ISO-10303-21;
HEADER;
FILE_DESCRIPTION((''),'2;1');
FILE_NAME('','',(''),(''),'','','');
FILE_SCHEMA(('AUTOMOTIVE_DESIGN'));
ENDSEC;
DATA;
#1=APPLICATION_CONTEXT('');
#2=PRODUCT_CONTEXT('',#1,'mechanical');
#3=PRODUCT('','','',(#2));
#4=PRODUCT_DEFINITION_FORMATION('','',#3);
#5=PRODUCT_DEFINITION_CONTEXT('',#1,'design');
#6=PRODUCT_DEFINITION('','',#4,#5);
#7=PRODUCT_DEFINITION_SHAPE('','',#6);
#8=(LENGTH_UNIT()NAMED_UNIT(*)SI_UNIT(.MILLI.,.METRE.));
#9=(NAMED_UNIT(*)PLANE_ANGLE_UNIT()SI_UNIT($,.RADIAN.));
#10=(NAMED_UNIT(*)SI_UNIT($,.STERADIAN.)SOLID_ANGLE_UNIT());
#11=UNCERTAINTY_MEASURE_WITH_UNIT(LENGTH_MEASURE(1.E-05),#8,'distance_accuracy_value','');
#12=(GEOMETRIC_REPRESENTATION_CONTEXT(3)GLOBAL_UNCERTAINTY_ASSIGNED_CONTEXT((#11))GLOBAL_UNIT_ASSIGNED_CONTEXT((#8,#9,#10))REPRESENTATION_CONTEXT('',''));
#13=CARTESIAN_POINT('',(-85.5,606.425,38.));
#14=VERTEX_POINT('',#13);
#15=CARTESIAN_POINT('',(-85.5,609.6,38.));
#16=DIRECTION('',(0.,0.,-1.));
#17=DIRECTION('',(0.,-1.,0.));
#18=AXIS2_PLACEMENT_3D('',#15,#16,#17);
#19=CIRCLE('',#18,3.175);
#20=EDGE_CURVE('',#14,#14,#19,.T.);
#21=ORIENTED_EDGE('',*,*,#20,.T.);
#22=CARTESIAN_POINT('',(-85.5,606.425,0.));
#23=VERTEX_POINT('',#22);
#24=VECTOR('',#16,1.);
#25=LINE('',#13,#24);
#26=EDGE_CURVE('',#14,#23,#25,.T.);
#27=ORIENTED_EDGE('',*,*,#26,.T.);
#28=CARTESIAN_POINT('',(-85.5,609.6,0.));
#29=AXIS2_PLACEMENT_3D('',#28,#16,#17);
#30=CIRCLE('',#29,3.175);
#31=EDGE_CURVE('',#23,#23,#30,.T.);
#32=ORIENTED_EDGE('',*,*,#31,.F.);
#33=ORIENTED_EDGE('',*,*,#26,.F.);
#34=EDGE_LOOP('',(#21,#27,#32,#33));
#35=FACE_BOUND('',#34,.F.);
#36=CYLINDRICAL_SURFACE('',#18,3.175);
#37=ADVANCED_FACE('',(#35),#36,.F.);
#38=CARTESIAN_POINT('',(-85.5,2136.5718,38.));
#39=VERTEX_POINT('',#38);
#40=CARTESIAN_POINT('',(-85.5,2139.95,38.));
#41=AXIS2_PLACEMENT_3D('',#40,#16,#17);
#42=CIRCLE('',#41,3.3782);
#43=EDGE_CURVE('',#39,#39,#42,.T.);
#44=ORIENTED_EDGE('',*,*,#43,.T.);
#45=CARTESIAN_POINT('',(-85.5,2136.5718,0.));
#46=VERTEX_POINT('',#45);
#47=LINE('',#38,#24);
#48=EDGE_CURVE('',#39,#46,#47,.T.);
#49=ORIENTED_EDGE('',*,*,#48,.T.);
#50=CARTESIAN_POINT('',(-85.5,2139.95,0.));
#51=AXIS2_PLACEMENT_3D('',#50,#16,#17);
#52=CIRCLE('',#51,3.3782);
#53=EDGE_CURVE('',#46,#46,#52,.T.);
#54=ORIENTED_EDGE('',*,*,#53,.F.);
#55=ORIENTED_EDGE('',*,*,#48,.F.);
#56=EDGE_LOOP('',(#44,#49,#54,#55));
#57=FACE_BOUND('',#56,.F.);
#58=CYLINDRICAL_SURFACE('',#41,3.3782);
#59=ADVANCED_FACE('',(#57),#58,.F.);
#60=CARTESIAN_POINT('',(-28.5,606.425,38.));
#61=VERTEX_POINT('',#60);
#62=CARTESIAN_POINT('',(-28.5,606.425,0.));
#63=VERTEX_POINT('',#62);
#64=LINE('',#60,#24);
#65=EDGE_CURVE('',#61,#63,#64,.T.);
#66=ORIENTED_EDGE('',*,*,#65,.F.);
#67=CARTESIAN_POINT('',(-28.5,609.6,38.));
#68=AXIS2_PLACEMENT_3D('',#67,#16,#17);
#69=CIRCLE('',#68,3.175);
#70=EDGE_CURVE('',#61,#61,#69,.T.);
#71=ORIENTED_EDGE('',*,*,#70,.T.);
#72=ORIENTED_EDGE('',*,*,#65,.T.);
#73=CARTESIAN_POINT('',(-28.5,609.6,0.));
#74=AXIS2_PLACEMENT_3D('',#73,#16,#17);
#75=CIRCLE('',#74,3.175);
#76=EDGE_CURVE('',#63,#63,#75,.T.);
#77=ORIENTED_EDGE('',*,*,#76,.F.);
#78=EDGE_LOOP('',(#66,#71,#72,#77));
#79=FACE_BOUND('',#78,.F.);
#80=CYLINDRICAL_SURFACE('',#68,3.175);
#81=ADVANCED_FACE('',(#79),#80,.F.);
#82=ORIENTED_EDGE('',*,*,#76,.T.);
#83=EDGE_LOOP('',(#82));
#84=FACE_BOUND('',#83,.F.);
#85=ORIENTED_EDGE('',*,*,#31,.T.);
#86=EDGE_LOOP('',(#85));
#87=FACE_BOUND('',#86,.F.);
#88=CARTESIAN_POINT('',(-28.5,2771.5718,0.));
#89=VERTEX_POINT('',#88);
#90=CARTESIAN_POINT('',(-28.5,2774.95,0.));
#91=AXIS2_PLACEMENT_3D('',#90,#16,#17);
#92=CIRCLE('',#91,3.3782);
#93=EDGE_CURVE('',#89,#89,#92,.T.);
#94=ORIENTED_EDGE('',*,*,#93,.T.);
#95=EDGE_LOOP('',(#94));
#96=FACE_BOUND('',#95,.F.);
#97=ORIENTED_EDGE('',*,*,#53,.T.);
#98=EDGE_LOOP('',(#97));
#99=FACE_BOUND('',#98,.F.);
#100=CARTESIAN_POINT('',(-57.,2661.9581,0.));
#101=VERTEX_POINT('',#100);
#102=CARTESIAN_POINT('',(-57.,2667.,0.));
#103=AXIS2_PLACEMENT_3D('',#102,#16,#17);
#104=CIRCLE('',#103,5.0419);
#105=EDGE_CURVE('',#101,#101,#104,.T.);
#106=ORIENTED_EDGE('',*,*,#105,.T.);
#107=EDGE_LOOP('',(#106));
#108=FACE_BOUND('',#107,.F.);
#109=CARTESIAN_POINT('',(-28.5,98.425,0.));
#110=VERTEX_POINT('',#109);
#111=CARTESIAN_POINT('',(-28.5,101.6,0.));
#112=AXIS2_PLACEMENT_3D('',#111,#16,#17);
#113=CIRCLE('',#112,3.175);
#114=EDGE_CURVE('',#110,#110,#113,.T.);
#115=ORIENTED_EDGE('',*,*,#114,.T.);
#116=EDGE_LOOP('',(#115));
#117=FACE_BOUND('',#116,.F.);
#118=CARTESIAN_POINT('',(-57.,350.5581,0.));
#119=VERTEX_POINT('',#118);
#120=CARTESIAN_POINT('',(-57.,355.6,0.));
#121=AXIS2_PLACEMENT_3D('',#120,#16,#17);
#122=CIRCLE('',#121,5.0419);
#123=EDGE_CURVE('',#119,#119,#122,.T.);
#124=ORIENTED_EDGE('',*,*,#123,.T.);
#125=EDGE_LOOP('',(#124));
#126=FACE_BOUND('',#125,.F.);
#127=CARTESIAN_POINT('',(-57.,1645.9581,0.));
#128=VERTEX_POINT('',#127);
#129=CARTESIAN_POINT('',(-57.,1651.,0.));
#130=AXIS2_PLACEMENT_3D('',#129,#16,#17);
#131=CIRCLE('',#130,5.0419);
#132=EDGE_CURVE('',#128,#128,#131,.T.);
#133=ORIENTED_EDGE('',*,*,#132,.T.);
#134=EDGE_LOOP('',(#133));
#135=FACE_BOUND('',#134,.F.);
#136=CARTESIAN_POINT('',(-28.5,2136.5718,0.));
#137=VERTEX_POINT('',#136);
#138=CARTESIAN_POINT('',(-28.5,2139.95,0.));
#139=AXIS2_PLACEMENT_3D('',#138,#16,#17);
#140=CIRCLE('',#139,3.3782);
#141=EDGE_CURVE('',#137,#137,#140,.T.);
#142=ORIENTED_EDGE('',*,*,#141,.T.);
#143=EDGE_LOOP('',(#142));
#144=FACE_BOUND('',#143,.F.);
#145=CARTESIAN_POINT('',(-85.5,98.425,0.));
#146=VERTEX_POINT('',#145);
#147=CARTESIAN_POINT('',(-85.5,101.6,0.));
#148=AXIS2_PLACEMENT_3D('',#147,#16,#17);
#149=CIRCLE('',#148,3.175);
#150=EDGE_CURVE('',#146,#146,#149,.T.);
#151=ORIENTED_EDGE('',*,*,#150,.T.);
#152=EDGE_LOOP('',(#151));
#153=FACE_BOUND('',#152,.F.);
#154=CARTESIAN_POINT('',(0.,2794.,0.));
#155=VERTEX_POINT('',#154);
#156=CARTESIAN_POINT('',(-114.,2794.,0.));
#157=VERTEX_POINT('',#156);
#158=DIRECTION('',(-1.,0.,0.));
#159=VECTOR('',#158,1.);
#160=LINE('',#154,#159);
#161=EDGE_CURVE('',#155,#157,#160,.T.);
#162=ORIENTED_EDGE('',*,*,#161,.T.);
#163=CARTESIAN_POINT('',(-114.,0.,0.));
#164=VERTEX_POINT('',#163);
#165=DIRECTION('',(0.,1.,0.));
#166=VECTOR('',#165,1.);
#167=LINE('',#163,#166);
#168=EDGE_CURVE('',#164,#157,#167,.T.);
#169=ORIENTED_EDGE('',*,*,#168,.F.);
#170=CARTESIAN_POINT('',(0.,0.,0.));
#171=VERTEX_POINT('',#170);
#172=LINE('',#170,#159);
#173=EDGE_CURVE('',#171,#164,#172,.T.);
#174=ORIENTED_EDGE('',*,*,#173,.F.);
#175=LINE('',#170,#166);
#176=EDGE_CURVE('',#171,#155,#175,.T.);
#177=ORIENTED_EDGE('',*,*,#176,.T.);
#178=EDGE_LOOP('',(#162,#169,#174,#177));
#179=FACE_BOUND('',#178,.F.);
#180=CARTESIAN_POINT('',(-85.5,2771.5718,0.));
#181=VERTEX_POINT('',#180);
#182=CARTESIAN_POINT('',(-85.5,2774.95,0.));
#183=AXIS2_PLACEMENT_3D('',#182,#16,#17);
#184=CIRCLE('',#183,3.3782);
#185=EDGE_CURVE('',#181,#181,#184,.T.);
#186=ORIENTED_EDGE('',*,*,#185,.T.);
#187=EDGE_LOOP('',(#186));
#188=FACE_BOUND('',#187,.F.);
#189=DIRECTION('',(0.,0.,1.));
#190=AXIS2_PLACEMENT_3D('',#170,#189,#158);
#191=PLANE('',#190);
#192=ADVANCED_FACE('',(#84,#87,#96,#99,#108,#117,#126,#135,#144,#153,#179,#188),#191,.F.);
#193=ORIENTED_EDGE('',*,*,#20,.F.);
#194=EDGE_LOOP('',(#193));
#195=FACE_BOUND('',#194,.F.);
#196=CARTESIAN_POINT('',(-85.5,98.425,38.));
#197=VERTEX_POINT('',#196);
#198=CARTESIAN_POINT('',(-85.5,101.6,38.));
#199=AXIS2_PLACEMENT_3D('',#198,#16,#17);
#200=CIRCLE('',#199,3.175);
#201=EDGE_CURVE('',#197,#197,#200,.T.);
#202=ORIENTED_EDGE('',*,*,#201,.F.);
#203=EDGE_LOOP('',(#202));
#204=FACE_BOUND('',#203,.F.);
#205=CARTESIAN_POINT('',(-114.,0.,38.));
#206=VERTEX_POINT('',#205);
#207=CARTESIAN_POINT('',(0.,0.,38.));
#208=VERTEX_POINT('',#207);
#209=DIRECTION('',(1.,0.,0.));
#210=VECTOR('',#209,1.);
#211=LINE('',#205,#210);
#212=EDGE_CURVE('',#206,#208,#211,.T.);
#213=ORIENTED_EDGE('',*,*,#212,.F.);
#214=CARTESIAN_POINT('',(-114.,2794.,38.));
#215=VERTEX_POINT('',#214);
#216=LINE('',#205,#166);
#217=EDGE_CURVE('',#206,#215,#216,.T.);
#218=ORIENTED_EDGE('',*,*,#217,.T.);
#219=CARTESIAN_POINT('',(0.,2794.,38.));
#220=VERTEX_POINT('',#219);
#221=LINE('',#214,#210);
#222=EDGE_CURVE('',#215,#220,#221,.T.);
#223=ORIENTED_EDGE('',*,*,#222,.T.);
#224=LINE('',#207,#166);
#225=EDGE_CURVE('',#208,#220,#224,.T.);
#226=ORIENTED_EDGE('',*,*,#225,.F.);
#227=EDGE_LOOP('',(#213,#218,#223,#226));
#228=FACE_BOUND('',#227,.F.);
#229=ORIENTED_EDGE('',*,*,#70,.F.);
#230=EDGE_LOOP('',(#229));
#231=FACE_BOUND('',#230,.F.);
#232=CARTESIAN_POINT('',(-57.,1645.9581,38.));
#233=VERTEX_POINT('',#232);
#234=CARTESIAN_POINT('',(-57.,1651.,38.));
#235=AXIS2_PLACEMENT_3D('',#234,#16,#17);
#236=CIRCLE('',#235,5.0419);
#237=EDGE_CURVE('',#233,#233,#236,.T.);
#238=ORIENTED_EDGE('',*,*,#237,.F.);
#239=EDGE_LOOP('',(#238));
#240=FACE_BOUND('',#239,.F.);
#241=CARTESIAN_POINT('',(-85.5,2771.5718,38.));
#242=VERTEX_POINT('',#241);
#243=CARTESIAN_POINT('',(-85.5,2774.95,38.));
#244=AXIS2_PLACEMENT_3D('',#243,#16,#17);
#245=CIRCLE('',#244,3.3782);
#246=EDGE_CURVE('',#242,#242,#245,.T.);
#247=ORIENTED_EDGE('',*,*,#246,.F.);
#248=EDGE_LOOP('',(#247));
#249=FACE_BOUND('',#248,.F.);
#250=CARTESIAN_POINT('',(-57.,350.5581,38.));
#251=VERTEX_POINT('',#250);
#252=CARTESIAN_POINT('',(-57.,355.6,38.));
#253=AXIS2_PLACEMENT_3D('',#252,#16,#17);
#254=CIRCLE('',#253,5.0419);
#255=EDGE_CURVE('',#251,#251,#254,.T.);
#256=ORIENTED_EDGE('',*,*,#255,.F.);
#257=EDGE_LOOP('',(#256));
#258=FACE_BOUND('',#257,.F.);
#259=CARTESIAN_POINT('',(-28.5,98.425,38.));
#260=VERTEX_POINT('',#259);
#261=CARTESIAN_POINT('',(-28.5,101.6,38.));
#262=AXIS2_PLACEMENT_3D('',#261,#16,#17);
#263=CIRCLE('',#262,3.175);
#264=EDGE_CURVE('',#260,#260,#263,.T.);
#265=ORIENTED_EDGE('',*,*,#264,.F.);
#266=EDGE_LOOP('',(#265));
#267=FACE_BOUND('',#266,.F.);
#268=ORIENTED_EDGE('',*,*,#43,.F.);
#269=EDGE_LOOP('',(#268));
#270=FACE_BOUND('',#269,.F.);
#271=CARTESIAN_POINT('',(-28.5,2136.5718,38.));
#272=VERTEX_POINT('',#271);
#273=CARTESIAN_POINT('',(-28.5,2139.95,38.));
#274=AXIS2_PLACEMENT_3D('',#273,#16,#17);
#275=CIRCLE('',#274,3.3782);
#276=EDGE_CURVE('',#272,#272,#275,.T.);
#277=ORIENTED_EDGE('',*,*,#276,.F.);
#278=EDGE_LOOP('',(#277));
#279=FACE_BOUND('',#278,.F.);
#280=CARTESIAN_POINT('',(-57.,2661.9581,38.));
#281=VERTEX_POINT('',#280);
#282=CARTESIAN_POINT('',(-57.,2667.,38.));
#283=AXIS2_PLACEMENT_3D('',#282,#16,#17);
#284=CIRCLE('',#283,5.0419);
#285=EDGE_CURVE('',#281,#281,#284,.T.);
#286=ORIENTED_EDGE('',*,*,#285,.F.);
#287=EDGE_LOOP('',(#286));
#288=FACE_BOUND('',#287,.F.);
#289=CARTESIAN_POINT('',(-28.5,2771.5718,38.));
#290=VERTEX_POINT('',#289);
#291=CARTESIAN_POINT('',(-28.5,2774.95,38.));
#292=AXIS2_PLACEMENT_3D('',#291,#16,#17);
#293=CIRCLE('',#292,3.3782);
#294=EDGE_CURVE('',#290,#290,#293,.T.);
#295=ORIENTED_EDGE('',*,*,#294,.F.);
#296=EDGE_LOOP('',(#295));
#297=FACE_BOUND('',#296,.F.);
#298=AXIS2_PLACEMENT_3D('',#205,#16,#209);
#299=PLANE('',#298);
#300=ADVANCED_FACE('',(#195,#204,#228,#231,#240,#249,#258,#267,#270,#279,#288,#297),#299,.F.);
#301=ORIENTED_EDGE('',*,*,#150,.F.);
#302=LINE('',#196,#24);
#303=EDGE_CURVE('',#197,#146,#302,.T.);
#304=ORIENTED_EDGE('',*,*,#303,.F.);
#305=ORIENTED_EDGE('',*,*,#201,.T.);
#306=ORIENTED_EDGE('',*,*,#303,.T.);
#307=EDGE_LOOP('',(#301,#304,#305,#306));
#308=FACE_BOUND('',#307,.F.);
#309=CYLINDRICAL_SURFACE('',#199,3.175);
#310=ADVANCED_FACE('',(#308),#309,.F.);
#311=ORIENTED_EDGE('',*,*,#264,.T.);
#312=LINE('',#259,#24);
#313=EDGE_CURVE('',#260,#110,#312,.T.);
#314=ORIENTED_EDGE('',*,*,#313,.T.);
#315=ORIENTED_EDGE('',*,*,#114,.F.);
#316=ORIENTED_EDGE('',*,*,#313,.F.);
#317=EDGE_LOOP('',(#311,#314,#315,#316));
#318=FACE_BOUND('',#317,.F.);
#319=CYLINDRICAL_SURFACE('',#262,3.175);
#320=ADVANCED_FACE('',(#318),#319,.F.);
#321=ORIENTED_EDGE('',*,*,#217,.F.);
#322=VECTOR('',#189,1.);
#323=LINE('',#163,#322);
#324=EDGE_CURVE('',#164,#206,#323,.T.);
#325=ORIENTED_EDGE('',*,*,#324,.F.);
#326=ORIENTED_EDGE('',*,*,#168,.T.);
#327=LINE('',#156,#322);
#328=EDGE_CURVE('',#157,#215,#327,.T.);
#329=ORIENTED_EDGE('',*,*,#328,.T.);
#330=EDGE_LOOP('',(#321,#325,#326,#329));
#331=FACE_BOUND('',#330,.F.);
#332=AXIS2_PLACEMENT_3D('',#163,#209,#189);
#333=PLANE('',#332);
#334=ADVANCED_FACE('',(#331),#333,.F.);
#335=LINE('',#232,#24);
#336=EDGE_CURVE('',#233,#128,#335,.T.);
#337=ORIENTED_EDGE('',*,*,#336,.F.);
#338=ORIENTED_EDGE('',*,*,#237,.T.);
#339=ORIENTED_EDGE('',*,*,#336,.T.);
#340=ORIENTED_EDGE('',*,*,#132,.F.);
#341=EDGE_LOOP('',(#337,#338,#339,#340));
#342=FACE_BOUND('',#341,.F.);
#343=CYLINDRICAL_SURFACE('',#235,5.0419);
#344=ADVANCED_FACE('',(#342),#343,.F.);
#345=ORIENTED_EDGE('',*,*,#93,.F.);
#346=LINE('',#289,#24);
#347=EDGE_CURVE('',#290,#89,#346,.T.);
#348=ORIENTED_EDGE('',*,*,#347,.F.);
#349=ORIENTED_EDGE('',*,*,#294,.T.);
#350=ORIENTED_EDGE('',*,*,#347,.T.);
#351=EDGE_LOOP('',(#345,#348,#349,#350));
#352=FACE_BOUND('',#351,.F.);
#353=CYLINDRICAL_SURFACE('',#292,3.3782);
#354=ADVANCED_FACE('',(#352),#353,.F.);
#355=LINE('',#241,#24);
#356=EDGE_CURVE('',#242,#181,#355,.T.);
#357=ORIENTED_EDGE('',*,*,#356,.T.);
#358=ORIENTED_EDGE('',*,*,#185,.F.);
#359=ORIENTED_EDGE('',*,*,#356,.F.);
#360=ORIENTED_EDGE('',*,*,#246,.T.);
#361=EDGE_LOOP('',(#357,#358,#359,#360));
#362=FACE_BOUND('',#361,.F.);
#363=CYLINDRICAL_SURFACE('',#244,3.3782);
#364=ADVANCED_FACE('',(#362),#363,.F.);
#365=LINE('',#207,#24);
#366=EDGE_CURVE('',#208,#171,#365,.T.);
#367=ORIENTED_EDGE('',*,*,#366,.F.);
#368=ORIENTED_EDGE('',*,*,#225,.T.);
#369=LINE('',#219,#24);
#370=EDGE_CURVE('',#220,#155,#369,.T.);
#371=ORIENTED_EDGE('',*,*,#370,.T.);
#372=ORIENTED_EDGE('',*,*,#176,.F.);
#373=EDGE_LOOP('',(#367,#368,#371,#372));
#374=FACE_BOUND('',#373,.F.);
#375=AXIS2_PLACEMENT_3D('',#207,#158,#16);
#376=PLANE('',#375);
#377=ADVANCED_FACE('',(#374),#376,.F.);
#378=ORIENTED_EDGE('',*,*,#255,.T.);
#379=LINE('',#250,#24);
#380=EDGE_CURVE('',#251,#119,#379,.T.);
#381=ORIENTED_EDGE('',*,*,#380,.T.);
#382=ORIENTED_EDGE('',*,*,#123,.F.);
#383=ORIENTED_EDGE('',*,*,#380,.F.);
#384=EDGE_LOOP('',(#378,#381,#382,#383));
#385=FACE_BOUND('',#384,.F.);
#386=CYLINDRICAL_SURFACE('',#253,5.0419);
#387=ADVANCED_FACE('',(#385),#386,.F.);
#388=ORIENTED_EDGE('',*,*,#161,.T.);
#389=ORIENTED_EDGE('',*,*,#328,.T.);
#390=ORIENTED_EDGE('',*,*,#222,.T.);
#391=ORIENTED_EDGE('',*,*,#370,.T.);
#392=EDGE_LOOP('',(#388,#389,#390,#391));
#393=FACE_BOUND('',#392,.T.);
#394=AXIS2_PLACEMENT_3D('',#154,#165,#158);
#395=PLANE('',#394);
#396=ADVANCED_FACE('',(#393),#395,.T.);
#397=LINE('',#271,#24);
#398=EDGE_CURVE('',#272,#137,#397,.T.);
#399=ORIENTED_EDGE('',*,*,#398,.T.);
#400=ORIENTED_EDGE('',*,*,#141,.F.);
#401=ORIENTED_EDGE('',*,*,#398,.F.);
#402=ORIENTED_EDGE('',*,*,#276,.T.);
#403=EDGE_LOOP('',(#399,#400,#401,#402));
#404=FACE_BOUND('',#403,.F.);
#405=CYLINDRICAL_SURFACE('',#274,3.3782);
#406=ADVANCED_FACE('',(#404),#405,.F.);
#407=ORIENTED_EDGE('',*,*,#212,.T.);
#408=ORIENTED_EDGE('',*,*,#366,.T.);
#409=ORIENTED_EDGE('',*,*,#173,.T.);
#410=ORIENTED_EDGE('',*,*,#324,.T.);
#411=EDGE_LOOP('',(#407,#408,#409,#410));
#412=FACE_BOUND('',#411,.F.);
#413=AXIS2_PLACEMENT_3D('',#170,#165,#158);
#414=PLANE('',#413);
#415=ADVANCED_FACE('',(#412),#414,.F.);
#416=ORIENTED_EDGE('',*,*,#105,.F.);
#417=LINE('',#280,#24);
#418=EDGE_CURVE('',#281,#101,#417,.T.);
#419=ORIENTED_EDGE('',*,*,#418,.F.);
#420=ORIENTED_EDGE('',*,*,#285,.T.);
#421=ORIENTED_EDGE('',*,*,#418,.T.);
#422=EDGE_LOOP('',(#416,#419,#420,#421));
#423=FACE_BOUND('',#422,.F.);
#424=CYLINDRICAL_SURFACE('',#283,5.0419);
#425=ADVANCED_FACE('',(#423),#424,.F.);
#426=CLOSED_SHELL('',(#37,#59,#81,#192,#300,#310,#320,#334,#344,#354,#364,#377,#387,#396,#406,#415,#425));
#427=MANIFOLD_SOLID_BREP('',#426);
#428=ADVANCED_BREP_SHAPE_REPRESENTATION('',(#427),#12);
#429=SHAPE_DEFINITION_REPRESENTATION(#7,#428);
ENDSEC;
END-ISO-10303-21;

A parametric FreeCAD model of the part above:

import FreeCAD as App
import Part
import Sketcher
from FreeCAD import Vector
Q = App.Units.Quantity


def add_polygon(sketch, points):
    """Adds a closed chain of lines whose ends are joined by coincident constraints."""
    first, n = sketch.GeometryCount, len(points)
    for a, b in zip(points, points[1:] + points[:1]):
        sketch.addGeometry(Part.LineSegment(App.Vector(*a, 0), App.Vector(*b, 0)), False)
    for i in range(n):
        sketch.addConstraint(Sketcher.Constraint("Coincident", first + i, 2, first + (i + 1) % n, 1))

doc = App.newDocument("Part")
params = doc.addObject("Spreadsheet::Sheet", "Params")
for row, (alias, value) in enumerate([
    ("pad1_length", "110 in"),
    ("sketch2_diameter", "0.25 in"),
    ("hole_diameter", "0.25 in"),
    ("sketch3_diameter", "0.266 in"),
    ("hole2_diameter", "0.266 in"),
    ("sketch4_diameter", "0.397 in"),
    ("hole3_diameter", "0.397 in"),
], start=1):
    params.set(f"A{row}", alias)
    params.set(f"B{row}", "=" + value)
    params.setAlias(f"B{row}", alias)

body = doc.addObject("PartDesign::Body", "Body")

# Sketch on XZ plane
sketch1 = doc.addObject("Sketcher::SketchObject", "Sketch")
body.addObject(sketch1)
sketch1.AttachmentSupport = (doc.XZ_Plane, [""])
sketch1.MapMode = "FlatFace"
add_polygon(sketch1, [(0, 38), (0, 0), (-114, 0), (-114, 38)])  # lines 0-3
sketch1.addConstraint(Sketcher.Constraint("Vertical", 0))
sketch1.addConstraint(Sketcher.Constraint("Horizontal", 1))
sketch1.addConstraint(Sketcher.Constraint("Vertical", 2))
sketch1.addConstraint(Sketcher.Constraint("Horizontal", 3))
sketch1.addConstraint(Sketcher.Constraint("Coincident", 0, 2, -1, 1))
sketch1.addConstraint(Sketcher.Constraint("DistanceX", 1, 2, 1, 1, Q("4.4882 in")))
sketch1.addConstraint(Sketcher.Constraint("DistanceY", 0, 2, 0, 1, 38.0))
pad1 = doc.addObject("PartDesign::Pad", "Pad")
body.addObject(pad1)
pad1.Profile = sketch1
pad1.setExpression("Length", "Params.pad1_length")
pad1.Reversed = True

# Sketch on XY plane
sketch2 = doc.addObject("Sketcher::SketchObject", "Sketch001")
body.addObject(sketch2)
sketch2.AttachmentSupport = (doc.XY_Plane, [""])
sketch2.MapMode = "FlatFace"
sketch2.AttachmentOffset = App.Placement(Vector(0, 0, 38), App.Rotation())
sketch2.addGeometry(Part.Circle(Vector(-85.5, 609.6, 0), Vector(0, 0, 1), 3.2), False)
sketch2.addGeometry(Part.Circle(Vector(-28.5, 609.6, 0), Vector(0, 0, 1), 3.2), False)
sketch2.addGeometry(Part.Circle(Vector(-85.5, 101.6, 0), Vector(0, 0, 1), 3.2), False)
sketch2.addGeometry(Part.Circle(Vector(-28.5, 101.6, 0), Vector(0, 0, 1), 3.2), False)
sketch2.addConstraint(Sketcher.Constraint("Equal", 0, 1))
sketch2.addConstraint(Sketcher.Constraint("Equal", 1, 2))
sketch2.addConstraint(Sketcher.Constraint("Equal", 2, 3))
sketch2.addConstraint(Sketcher.Constraint("Horizontal", 0, 3, 1, 3))
sketch2.addConstraint(Sketcher.Constraint("Horizontal", 2, 3, 3, 3))
sketch2.addConstraint(Sketcher.Constraint("Vertical", 0, 3, 2, 3))
sketch2.addConstraint(Sketcher.Constraint("Vertical", 1, 3, 3, 3))
sketch2.addConstraint(Sketcher.Constraint("Diameter", 0, Q("0.25 in")))
sketch2.addConstraint(Sketcher.Constraint("DistanceY", -1, 1, 0, 3, Q("24 in")))
sketch2.addConstraint(Sketcher.Constraint("DistanceY", -1, 1, 2, 3, Q("4 in")))
sketch2.addConstraint(Sketcher.Constraint("DistanceX", 0, 3, 1, 3, Q("2.2441 in")))
sketch2.addConstraint(Sketcher.Constraint("DistanceX", 0, 3, -1, 1, 85.5))
sketch2.setExpression("Constraints[7]", "Params.sketch2_diameter")
doc.recompute()
hole = doc.addObject("PartDesign::Hole", "Hole")
body.addObject(hole)
hole.Profile = sketch2
hole.ThreadType = "None"
hole.setExpression("Diameter", "Params.hole_diameter")
hole.DepthType = "ThroughAll"

# Sketch on XY plane
sketch3 = doc.addObject("Sketcher::SketchObject", "Sketch002")
body.addObject(sketch3)
sketch3.AttachmentSupport = (doc.XY_Plane, [""])
sketch3.MapMode = "FlatFace"
sketch3.AttachmentOffset = App.Placement(Vector(0, 0, 38), App.Rotation())
sketch3.addGeometry(Part.Circle(Vector(-85.5, 2774.9, 0), Vector(0, 0, 1), 3.4), False)
sketch3.addGeometry(Part.Circle(Vector(-28.5, 2774.9, 0), Vector(0, 0, 1), 3.4), False)
sketch3.addGeometry(Part.Circle(Vector(-28.5, 2139.9, 0), Vector(0, 0, 1), 3.4), False)
sketch3.addGeometry(Part.Circle(Vector(-85.5, 2139.9, 0), Vector(0, 0, 1), 3.4), False)
sketch3.addConstraint(Sketcher.Constraint("Equal", 0, 1))
sketch3.addConstraint(Sketcher.Constraint("Equal", 1, 2))
sketch3.addConstraint(Sketcher.Constraint("Equal", 2, 3))
sketch3.addConstraint(Sketcher.Constraint("Horizontal", 0, 3, 1, 3))
sketch3.addConstraint(Sketcher.Constraint("Horizontal", 2, 3, 3, 3))
sketch3.addConstraint(Sketcher.Constraint("Vertical", 1, 3, 2, 3))
sketch3.addConstraint(Sketcher.Constraint("Vertical", 0, 3, 3, 3))
sketch3.addConstraint(Sketcher.Constraint("Diameter", 0, Q("0.266 in")))
sketch3.addConstraint(Sketcher.Constraint("DistanceY", 2, 3, 1, 3, Q("25 in")))
sketch3.addConstraint(Sketcher.Constraint("DistanceY", -1, 1, 0, 3, Q("109.25 in")))
sketch3.addConstraint(Sketcher.Constraint("DistanceX", 0, 3, 1, 3, Q("2.2441 in")))
sketch3.addConstraint(Sketcher.Constraint("DistanceX", 0, 3, -1, 1, 85.5))
sketch3.setExpression("Constraints[7]", "Params.sketch3_diameter")
doc.recompute()
hole2 = doc.addObject("PartDesign::Hole", "Hole001")
body.addObject(hole2)
hole2.Profile = sketch3
hole2.ThreadType = "None"
hole2.setExpression("Diameter", "Params.hole2_diameter")
hole2.DepthType = "ThroughAll"

# Sketch on XY plane
sketch4 = doc.addObject("Sketcher::SketchObject", "Sketch003")
body.addObject(sketch4)
sketch4.AttachmentSupport = (doc.XY_Plane, [""])
sketch4.MapMode = "FlatFace"
sketch4.AttachmentOffset = App.Placement(Vector(0, 0, 38), App.Rotation())
sketch4.addGeometry(Part.Circle(Vector(-57, 2667, 0), Vector(0, 0, 1), 5), False)
sketch4.addGeometry(Part.Circle(Vector(-57, 1651, 0), Vector(0, 0, 1), 5), False)
sketch4.addGeometry(Part.Circle(Vector(-57, 356, 0), Vector(0, 0, 1), 5), False)
sketch4.addConstraint(Sketcher.Constraint("Equal", 0, 1))
sketch4.addConstraint(Sketcher.Constraint("Equal", 1, 2))
sketch4.addConstraint(Sketcher.Constraint("Vertical", 0, 3, 1, 3))
sketch4.addConstraint(Sketcher.Constraint("Vertical", 1, 3, 2, 3))
sketch4.addConstraint(Sketcher.Constraint("Diameter", 0, Q("0.397 in")))
sketch4.addConstraint(Sketcher.Constraint("DistanceY", -1, 1, 0, 3, Q("105 in")))
sketch4.addConstraint(Sketcher.Constraint("DistanceY", -1, 1, 1, 3, Q("65 in")))
sketch4.addConstraint(Sketcher.Constraint("DistanceY", -1, 1, 2, 3, Q("14 in")))
sketch4.addConstraint(Sketcher.Constraint("DistanceX", 0, 3, -1, 1, Q("2.2441 in")))
sketch4.setExpression("Constraints[4]", "Params.sketch4_diameter")
doc.recompute()
hole3 = doc.addObject("PartDesign::Hole", "Hole002")
body.addObject(hole3)
hole3.Profile = sketch4
hole3.ThreadType = "None"
hole3.setExpression("Diameter", "Params.hole3_diameter")
hole3.DepthType = "ThroughAll"

doc.recompute()
